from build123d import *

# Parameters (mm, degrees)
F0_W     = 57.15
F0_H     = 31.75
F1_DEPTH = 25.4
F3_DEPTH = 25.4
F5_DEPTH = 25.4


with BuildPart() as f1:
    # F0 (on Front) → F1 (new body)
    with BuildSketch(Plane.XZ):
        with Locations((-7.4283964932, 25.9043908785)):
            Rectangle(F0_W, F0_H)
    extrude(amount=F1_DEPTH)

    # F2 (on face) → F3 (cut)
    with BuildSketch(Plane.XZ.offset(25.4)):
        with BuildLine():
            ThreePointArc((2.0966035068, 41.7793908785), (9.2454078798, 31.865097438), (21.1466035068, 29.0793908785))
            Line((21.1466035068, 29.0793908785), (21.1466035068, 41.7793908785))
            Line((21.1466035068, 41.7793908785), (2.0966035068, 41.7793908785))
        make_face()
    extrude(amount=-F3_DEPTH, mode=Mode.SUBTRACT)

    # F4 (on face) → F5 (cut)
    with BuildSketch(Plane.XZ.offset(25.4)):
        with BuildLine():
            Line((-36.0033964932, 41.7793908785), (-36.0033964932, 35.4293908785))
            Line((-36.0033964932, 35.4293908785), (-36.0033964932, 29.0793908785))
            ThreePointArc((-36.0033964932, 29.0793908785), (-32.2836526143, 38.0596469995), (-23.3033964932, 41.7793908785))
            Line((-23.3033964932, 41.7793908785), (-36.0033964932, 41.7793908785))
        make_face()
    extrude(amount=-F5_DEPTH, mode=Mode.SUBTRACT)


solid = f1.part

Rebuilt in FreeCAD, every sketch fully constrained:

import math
import FreeCAD as App
import Part
import Sketcher
Q = App.Units.Quantity


def add_polygon(sketch, points):
    """Adds a closed chain of lines whose ends are joined by coincident constraints."""
    first, n = sketch.GeometryCount, len(points)
    for a, b in zip(points, points[1:] + points[:1]):
        sketch.addGeometry(Part.LineSegment(App.Vector(*a, 0), App.Vector(*b, 0)), False)
    for i in range(n):
        sketch.addConstraint(Sketcher.Constraint("Coincident", first + i, 2, first + (i + 1) % n, 1))

doc = App.newDocument("Part")
body = doc.addObject("PartDesign::Body", "Body")

# Sketch on XZ plane
sketch1 = doc.addObject("Sketcher::SketchObject", "Sketch")
body.addObject(sketch1)
sketch1.AttachmentSupport = (doc.XZ_Plane, [""])
sketch1.MapMode = "FlatFace"
add_polygon(sketch1, [(-36, 42), (-36, 10), (21, 10), (21, 42)])  # lines 0-3
sketch1.addConstraint([
    Sketcher.Constraint("Vertical", 0),
    Sketcher.Constraint("Horizontal", 1),
    Sketcher.Constraint("Vertical", 2),
    Sketcher.Constraint("Horizontal", 3),
    Sketcher.Constraint("DistanceX", 1, 1, 1, 2, Q("2.25 in")),
    Sketcher.Constraint("DistanceY", 0, 2, 0, 1, Q("1.25 in")),
    Sketcher.Constraint("DistanceY", -1, 1, 0, 2, Q("10.029391 mm")),
    Sketcher.Constraint("DistanceX", 0, 2, -1, 1, Q("36.003396 mm")),
])
pad1 = doc.addObject("PartDesign::Pad", "Pad")
body.addObject(pad1)
pad1.Profile = sketch1
pad1.Length = Q("1 in")

# Sketch on XZ plane
sketch2 = doc.addObject("Sketcher::SketchObject", "Sketch001")
body.addObject(sketch2)
sketch2.AttachmentSupport = (doc.XZ_Plane, [""])
sketch2.MapMode = "FlatFace"
sketch2.AttachmentOffset = App.Placement(App.Vector(0, 0, 1 * 25.4), App.Rotation())
sketch2.addGeometry([
    Part.ArcOfCircle(Part.Circle(App.Vector(19, 46, 0), App.Vector(0, 0, 1), 17), math.radians(-165), math.radians(-83)),
    Part.LineSegment(App.Vector(21, 29, 0), App.Vector(21, 42, 0)),
    Part.LineSegment(App.Vector(21, 42, 0), App.Vector(2, 42, 0)),
], False)
sketch2.addConstraint([
    Sketcher.Constraint("Coincident", 0, 2, 1, 1),
    Sketcher.Constraint("Coincident", 1, 2, 2, 1),
    Sketcher.Constraint("Coincident", 2, 2, 0, 1),
    Sketcher.Constraint("Vertical", 1),
    Sketcher.Constraint("Horizontal", 2),
    Sketcher.Constraint("DistanceY", 1, 1, 1, 2, Q("0.5 in")),
    Sketcher.Constraint("DistanceX", 2, 2, 2, 1, Q("0.75 in")),
    Sketcher.Constraint("Radius", 0, Q("17.437841 mm")),
    Sketcher.Constraint("DistanceX", -1, 1, 0, 3, Q("18.918182 mm")),
    Sketcher.Constraint("DistanceY", -1, 1, 0, 3, Q("46.374258 mm")),
])
pocket1 = doc.addObject("PartDesign::Pocket", "Pocket")
body.addObject(pocket1)
pocket1.Profile = sketch2
pocket1.Length = Q("1 in")

# Sketch on XZ plane
sketch3 = doc.addObject("Sketcher::SketchObject", "Sketch002")
body.addObject(sketch3)
sketch3.AttachmentSupport = (doc.XZ_Plane, [""])
sketch3.MapMode = "FlatFace"
sketch3.AttachmentOffset = App.Placement(App.Vector(0, 0, 1 * 25.4), App.Rotation())
sketch3.addGeometry([
    Part.LineSegment(App.Vector(-36, 42, 0), App.Vector(-36, 29, 0)),
    Part.ArcOfCircle(Part.Circle(App.Vector(-23, 29, 0), App.Vector(0, 0, 1), 13), math.radians(90), math.radians(180)),
    Part.LineSegment(App.Vector(-23, 42, 0), App.Vector(-36, 42, 0)),
], False)
sketch3.addConstraint([
    Sketcher.Constraint("Tangent", 0, 2, 1, 2),
    Sketcher.Constraint("Tangent", 1, 1, 2, 1),
    Sketcher.Constraint("Coincident", 2, 2, 0, 1),
    Sketcher.Constraint("Vertical", 0),
    Sketcher.Constraint("Horizontal", 2),
    Sketcher.Constraint("Radius", 1, Q("0.5 in")),
    Sketcher.Constraint("DistanceY", -1, 1, 1, 3, Q("29.079391 mm")),
    Sketcher.Constraint("DistanceX", 1, 3, -1, 1, Q("23.303396 mm")),
])
pocket2 = doc.addObject("PartDesign::Pocket", "Pocket001")
body.addObject(pocket2)
pocket2.Profile = sketch3
pocket2.Length = Q("1 in")

doc.recompute()
